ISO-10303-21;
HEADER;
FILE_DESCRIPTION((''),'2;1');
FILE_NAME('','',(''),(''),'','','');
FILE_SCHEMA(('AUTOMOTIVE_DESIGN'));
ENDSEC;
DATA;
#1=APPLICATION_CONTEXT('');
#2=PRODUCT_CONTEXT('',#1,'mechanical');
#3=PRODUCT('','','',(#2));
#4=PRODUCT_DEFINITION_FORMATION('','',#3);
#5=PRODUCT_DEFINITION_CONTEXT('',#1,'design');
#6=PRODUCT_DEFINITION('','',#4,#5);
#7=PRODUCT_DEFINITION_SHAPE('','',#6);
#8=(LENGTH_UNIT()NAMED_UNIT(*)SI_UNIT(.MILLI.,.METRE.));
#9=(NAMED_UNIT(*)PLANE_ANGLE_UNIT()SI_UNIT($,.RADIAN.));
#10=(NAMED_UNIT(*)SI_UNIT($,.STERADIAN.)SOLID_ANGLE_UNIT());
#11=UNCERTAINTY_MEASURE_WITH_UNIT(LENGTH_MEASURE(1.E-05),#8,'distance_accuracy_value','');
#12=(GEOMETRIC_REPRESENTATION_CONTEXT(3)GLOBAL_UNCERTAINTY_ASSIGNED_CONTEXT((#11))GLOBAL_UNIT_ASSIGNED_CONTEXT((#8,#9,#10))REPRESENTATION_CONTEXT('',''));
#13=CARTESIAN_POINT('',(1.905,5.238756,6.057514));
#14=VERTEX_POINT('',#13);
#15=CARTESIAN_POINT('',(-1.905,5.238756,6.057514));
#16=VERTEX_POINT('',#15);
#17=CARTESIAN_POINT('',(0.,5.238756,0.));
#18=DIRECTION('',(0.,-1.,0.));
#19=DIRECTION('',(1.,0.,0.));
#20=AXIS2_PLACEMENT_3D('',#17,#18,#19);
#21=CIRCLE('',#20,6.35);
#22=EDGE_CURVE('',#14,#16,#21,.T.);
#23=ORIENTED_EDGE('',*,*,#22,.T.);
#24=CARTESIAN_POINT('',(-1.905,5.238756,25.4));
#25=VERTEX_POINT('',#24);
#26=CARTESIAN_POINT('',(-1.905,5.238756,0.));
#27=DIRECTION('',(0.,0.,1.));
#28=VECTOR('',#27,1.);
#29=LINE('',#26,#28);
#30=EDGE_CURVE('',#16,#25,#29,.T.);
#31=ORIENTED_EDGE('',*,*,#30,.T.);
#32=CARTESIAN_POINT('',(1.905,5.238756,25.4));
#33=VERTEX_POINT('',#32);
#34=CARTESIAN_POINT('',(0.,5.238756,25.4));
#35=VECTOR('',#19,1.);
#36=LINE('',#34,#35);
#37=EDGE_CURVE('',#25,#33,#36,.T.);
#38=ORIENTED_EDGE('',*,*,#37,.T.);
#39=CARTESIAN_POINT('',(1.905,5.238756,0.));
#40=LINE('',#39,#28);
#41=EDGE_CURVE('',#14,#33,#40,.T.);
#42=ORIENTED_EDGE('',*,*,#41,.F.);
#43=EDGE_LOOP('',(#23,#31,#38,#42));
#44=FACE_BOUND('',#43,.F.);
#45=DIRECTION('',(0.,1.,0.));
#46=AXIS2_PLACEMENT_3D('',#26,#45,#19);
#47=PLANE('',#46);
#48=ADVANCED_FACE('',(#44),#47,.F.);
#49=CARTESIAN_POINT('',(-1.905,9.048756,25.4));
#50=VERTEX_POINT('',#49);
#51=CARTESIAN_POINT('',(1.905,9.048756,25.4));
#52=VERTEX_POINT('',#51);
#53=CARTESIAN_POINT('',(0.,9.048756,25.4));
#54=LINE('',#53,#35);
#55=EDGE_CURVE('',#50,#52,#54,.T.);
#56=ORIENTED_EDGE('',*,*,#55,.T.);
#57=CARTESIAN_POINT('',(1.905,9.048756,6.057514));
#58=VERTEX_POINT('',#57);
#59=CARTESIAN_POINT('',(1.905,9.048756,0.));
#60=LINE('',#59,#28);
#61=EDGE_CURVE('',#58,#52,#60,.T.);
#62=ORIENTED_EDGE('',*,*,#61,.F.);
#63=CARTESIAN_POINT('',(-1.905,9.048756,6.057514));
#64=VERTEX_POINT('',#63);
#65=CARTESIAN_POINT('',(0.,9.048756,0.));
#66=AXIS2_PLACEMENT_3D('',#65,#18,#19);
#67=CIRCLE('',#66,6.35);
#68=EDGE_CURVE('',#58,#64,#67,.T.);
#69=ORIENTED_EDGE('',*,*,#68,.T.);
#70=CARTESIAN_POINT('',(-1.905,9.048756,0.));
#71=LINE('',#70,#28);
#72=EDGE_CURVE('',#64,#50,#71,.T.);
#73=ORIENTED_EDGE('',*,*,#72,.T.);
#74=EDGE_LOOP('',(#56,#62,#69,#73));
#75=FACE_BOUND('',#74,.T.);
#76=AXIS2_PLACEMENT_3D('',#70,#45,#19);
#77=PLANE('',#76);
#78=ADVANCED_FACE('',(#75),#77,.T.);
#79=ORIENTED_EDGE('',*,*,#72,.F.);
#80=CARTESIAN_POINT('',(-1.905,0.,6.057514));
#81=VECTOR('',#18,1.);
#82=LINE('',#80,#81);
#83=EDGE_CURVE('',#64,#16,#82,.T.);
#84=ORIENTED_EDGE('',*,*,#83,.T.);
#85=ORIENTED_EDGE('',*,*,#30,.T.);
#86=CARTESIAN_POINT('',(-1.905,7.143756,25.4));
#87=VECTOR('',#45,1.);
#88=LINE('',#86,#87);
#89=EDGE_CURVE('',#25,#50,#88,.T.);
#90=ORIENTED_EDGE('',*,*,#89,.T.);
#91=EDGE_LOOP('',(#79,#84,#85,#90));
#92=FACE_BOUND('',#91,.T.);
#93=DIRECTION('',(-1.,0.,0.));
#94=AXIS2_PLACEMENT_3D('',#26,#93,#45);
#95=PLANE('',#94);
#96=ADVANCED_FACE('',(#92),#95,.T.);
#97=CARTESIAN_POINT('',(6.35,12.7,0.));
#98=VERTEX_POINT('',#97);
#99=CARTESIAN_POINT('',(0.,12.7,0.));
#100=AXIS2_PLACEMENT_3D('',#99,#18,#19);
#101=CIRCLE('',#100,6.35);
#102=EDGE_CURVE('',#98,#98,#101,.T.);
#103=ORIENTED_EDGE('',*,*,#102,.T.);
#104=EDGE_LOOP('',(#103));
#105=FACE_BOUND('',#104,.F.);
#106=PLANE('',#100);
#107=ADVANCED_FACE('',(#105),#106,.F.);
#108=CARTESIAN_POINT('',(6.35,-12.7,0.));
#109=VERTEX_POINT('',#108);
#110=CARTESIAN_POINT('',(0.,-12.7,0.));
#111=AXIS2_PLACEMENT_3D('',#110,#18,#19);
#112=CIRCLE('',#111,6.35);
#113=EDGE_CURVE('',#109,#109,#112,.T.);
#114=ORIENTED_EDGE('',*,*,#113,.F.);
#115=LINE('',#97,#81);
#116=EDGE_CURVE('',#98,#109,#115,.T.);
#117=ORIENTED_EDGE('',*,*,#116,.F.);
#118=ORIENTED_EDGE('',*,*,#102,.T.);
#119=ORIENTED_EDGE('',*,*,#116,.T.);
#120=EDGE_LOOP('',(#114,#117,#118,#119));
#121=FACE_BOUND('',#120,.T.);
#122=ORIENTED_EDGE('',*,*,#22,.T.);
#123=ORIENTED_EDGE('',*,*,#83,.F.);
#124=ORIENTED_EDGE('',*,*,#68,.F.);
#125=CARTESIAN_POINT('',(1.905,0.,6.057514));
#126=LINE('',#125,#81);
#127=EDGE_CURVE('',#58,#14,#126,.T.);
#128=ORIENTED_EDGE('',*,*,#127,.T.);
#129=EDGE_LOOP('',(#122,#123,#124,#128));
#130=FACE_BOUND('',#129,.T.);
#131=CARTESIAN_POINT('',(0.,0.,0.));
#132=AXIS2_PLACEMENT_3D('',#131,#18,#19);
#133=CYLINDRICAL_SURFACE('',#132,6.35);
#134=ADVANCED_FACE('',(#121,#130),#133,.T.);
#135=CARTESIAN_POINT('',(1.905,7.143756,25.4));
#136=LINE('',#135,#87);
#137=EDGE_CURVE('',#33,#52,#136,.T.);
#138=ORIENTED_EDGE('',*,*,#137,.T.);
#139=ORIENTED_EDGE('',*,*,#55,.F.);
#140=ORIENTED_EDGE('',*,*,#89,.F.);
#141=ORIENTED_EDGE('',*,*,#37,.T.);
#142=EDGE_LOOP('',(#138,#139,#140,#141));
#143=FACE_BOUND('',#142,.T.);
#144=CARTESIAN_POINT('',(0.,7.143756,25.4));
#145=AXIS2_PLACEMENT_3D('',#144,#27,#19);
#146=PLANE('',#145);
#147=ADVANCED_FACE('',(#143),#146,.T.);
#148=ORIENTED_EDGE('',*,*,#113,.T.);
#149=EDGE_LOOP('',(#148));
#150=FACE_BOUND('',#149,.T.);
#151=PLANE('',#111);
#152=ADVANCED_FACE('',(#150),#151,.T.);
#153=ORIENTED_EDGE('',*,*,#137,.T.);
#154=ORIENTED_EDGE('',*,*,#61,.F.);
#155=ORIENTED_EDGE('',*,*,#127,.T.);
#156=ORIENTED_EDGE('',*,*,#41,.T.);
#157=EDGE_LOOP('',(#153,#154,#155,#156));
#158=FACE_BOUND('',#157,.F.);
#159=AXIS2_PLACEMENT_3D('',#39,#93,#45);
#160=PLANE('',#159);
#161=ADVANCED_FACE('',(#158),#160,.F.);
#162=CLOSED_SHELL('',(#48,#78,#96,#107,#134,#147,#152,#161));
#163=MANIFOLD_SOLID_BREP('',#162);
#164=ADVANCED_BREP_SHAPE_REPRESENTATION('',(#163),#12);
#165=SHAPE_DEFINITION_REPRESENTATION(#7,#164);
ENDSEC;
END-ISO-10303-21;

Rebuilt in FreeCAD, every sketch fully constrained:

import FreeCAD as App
import Part
import Sketcher
from FreeCAD import Vector
Q = App.Units.Quantity

doc = App.newDocument("Part")
body = doc.addObject("PartDesign::Body", "Body")

sketch1 = doc.addObject("Sketcher::SketchObject", "Sketch")
body.addObject(sketch1)
sketch1.AttachmentSupport = (doc.XZ_Plane, [""])
sketch1.MapMode = "FlatFace"
sketch1.addGeometry(Part.Circle(Vector(0, 0, 0), Vector(0, 0, 1), 6.35), False)
sketch1.addConstraint([
    Sketcher.Constraint("Coincident", 0, 3, -1, 1),
    Sketcher.Constraint("Diameter", 0, Q("0.5 in")),
])
pad1 = doc.addObject("PartDesign::Pad", "Pad")
body.addObject(pad1)
pad1.Profile = sketch1
pad1.Length = Q("1 in")
pad1.Midplane = True

sketch2 = doc.addObject("Sketcher::SketchObject", "Sketch001")
body.addObject(sketch2)
sketch2.AttachmentSupport = (doc.XY_Plane, [""])
sketch2.MapMode = "FlatFace"
sketch2.addGeometry([
    Part.LineSegment(Vector(-1.905, 9.048756, 0), Vector(-1.905, 5.238756, 0)),
    Part.LineSegment(Vector(-1.905, 5.238756, 0), Vector(1.905, 5.238756, 0)),
    Part.LineSegment(Vector(1.905, 5.238756, 0), Vector(1.905, 9.048756, 0)),
    Part.LineSegment(Vector(1.905, 9.048756, 0), Vector(-1.905, 9.048756, 0)),
], False)
sketch2.addConstraint([
    Sketcher.Constraint("Coincident", 0, 2, 1, 1),
    Sketcher.Constraint("Coincident", 1, 2, 2, 1),
    Sketcher.Constraint("Coincident", 2, 2, 3, 1),
    Sketcher.Constraint("Coincident", 3, 2, 0, 1),
    Sketcher.Constraint("Vertical", 0),
    Sketcher.Constraint("Horizontal", 1),
    Sketcher.Constraint("Vertical", 2),
    Sketcher.Constraint("Horizontal", 3),
    Sketcher.Constraint("Equal", 3, 0),
    Sketcher.Constraint("DistanceX", 1, 1, 1, 2, Q("0.15 in")),
    Sketcher.Constraint("DistanceX", 0, 2, -1, 1, Q("0.075 in")),
    Sketcher.Constraint("DistanceY", -1, 1, 0, 2, Q("5.238756 mm")),
])
pad2 = doc.addObject("PartDesign::Pad", "Pad001")
body.addObject(pad2)
pad2.Profile = sketch2
pad2.Length = Q("1 in")

doc.recompute()
